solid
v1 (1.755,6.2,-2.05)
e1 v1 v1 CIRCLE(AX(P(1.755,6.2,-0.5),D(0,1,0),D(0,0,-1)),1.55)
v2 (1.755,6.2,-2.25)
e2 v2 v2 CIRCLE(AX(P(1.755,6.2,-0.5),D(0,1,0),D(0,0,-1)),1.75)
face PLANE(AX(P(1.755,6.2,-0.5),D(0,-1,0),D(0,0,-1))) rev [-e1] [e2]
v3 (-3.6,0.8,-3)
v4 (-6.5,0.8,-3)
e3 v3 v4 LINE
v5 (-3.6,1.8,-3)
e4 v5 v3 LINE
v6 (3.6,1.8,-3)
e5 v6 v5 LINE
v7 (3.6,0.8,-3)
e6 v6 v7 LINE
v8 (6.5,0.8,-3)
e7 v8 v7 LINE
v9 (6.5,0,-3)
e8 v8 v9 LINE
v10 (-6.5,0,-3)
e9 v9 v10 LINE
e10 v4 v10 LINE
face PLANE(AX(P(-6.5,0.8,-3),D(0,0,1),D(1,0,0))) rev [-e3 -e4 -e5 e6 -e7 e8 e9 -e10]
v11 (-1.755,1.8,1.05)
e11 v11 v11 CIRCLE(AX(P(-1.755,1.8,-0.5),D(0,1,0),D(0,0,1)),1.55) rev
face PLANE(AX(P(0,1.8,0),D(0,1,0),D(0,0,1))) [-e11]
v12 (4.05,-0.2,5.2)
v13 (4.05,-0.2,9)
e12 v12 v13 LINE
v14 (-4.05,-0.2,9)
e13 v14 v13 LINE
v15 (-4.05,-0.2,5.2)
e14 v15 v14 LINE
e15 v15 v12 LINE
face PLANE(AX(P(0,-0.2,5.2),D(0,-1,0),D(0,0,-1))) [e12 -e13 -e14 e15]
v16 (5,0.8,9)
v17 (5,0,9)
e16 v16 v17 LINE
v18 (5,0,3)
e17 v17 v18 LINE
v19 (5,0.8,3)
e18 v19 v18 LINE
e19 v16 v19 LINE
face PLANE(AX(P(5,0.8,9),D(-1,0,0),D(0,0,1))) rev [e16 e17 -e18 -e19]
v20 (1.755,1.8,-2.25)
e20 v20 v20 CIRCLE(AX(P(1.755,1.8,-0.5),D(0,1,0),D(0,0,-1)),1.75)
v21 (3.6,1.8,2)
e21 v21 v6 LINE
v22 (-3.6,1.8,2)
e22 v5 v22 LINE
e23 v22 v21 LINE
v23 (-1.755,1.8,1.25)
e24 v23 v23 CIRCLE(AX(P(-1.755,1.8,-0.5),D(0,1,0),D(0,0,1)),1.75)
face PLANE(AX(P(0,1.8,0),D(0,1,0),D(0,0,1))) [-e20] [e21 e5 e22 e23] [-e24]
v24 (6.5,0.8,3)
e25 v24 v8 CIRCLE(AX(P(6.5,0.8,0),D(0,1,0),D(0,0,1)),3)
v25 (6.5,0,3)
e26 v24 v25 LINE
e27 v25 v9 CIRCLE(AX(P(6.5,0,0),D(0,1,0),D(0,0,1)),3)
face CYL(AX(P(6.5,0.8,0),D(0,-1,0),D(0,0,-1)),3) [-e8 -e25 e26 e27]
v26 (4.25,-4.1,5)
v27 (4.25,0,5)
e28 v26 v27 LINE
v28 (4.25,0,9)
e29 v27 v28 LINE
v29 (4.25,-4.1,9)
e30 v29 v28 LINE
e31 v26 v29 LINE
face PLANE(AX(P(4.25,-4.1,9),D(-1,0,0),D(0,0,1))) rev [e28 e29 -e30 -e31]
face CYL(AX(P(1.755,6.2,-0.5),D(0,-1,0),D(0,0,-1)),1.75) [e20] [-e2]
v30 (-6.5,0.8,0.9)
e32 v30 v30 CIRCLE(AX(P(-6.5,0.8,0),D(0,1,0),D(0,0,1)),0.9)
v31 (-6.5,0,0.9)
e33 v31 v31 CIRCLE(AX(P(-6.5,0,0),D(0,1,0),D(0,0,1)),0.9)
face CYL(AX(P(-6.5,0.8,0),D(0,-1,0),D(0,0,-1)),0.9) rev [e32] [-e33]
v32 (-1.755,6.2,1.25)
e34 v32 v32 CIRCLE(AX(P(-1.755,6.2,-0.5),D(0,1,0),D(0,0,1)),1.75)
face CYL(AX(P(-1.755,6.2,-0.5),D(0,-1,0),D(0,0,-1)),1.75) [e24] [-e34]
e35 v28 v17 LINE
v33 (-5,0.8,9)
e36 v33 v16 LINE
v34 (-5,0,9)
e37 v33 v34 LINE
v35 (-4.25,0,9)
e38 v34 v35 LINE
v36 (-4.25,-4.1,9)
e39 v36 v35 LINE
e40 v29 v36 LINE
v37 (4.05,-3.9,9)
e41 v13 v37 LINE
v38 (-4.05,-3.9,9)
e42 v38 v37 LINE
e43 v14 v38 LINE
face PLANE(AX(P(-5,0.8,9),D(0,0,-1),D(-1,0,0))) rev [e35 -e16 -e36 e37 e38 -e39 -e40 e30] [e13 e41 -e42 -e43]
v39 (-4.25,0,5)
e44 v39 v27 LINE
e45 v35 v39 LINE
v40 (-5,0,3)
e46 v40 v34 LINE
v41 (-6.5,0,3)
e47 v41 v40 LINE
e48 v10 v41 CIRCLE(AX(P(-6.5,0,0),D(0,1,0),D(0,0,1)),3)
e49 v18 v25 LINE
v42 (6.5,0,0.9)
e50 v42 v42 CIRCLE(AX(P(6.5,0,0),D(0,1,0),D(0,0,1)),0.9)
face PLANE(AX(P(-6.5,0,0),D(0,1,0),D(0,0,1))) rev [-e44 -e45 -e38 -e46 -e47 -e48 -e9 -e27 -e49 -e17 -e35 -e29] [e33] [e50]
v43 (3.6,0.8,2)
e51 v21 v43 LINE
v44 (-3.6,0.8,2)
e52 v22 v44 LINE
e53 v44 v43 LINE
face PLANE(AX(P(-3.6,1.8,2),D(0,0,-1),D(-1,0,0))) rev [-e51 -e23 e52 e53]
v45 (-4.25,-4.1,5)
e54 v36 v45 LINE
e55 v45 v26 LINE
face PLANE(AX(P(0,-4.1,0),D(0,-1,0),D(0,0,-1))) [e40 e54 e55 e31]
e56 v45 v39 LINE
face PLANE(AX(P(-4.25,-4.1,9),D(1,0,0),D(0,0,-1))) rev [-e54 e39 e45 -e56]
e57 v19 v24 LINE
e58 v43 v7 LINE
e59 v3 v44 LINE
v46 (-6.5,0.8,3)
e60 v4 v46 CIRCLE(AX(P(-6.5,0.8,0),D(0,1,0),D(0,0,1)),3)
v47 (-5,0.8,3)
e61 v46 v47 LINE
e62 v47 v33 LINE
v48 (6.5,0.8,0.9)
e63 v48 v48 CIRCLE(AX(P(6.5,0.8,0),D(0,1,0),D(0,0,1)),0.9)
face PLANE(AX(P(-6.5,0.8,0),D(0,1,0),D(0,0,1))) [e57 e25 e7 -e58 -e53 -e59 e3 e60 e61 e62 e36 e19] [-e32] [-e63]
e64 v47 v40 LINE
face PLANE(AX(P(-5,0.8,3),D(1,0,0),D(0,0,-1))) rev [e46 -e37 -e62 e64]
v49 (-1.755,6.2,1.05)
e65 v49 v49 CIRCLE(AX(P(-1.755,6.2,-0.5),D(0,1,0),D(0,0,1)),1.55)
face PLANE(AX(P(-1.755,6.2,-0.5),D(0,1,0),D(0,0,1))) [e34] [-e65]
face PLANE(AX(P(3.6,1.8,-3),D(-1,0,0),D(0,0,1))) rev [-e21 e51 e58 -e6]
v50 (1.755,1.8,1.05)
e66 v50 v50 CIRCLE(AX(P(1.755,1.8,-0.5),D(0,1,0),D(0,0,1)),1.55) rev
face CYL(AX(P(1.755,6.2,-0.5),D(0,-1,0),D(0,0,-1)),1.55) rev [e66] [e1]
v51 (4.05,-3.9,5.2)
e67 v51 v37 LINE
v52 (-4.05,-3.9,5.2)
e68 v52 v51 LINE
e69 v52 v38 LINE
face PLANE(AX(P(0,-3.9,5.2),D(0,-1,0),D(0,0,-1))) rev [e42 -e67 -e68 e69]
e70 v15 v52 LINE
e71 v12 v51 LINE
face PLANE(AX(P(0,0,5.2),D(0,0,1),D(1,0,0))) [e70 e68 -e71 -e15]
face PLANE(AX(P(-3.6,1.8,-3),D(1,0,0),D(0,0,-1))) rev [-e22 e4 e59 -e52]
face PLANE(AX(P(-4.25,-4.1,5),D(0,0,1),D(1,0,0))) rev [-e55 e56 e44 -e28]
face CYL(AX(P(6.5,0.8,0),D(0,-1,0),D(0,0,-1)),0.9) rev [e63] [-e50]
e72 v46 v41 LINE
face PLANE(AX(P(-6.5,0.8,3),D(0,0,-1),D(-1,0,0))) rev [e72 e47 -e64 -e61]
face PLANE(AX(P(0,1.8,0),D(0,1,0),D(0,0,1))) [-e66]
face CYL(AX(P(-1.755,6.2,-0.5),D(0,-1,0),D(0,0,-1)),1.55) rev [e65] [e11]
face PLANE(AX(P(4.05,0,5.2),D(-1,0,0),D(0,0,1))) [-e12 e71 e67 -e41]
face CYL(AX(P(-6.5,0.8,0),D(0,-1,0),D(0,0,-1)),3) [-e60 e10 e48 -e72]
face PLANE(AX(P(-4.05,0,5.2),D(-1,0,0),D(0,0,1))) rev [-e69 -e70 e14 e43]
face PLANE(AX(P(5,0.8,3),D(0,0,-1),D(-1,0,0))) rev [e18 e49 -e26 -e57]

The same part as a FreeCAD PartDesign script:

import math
import FreeCAD as App
import Part
import Sketcher
Q = App.Units.Quantity


def add_polygon(sketch, points):
    """Adds a closed chain of lines whose ends are joined by coincident constraints."""
    first, n = sketch.GeometryCount, len(points)
    for a, b in zip(points, points[1:] + points[:1]):
        sketch.addGeometry(Part.LineSegment(App.Vector(*a, 0), App.Vector(*b, 0)), False)
    for i in range(n):
        sketch.addConstraint(Sketcher.Constraint("Coincident", first + i, 2, first + (i + 1) % n, 1))

doc = App.newDocument("Part")
body = doc.addObject("PartDesign::Body", "Body")

# Sketch on XZ plane
sketch1 = body.newObject("Sketcher::SketchObject", "Sketch")
sketch1.AttachmentSupport = (doc.getObject("XZ_Plane"), [""])
sketch1.MapMode = "FlatFace"
sketch1.addGeometry([
    Part.LineSegment(App.Vector(6.5, -3, 0), App.Vector(-6.5, -3, 0)),  # 0
    Part.ArcOfCircle(Part.Circle(App.Vector(-6.5, 0, 0), App.Vector(0, 0, 1), 3), math.radians(90), math.radians(270)),  # 1
    Part.LineSegment(App.Vector(-6.5, 3, 0), App.Vector(-5, 3, 0)),  # 2
    Part.LineSegment(App.Vector(-5, 3, 0), App.Vector(-5, 9, 0)),  # 3
    Part.LineSegment(App.Vector(-5, 9, 0), App.Vector(5, 9, 0)),  # 4
    Part.LineSegment(App.Vector(5, 9, 0), App.Vector(5, 3, 0)),  # 5
    Part.LineSegment(App.Vector(5, 3, 0), App.Vector(6.5, 3, 0)),  # 6
    Part.ArcOfCircle(Part.Circle(App.Vector(6.5, 0, 0), App.Vector(0, 0, 1), 3), math.radians(-90), math.radians(90)),  # 7
    Part.Circle(App.Vector(6.5, 0, 0), App.Vector(0, 0, 1), 0.9),  # 8
    Part.Circle(App.Vector(-6.5, 0, 0), App.Vector(0, 0, 1), 0.9),  # 9
], False)
sketch1.addConstraint([
    Sketcher.Constraint("Tangent", 0, 2, 1, 2),
    Sketcher.Constraint("Tangent", 1, 1, 2, 1),
    Sketcher.Constraint("Coincident", 2, 2, 3, 1),
    Sketcher.Constraint("Coincident", 3, 2, 4, 1),
    Sketcher.Constraint("Coincident", 4, 2, 5, 1),
    Sketcher.Constraint("Coincident", 5, 2, 6, 1),
    Sketcher.Constraint("Tangent", 6, 2, 7, 2),
    Sketcher.Constraint("Tangent", 7, 1, 0, 1),
    Sketcher.Constraint("Horizontal", 0),
    Sketcher.Constraint("Horizontal", 2),
    Sketcher.Constraint("Vertical", 3),
    Sketcher.Constraint("Horizontal", 4),
    Sketcher.Constraint("Vertical", 5),
    Sketcher.Constraint("Horizontal", 6),
    Sketcher.Constraint("Coincident", 8, 3, 7, 3),
    Sketcher.Constraint("Coincident", 9, 3, 1, 3),
    Sketcher.Constraint("Equal", 1, 7),
    Sketcher.Constraint("Equal", 8, 9),
    Sketcher.Constraint("Symmetric", 1, 3, 7, 3, -1, 1),
    Sketcher.Constraint("Equal", 2, 6),
    Sketcher.Constraint("Radius", 1, Q("3 mm")),
    Sketcher.Constraint("Diameter", 8, Q("1.8 mm")),
    Sketcher.Constraint("DistanceX", 0, 2, 0, 1, Q("13 mm")),
    Sketcher.Constraint("DistanceX", 4, 1, 4, 2, Q("10 mm")),
    Sketcher.Constraint("DistanceY", 3, 1, 3, 2, Q("6 mm")),
])
pad1 = body.newObject("PartDesign::Pad", "Pad")
pad1.Profile = sketch1
pad1.Length = 0.8
pad1.Reversed = True

# Sketch on XZ plane
sketch2 = body.newObject("Sketcher::SketchObject", "Sketch001")
sketch2.AttachmentSupport = (doc.getObject("XZ_Plane"), [""])
sketch2.MapMode = "FlatFace"
sketch2.AttachmentOffset = App.Placement(App.Vector(0, 0, -0.8), App.Rotation())
add_polygon(sketch2, [(-4, -3), (-4, 2), (4, 2), (4, -3)])  # lines 0-3
sketch2.addConstraint([
    Sketcher.Constraint("Vertical", 0),
    Sketcher.Constraint("Horizontal", 1),
    Sketcher.Constraint("Vertical", 2),
    Sketcher.Constraint("Horizontal", 3),
    Sketcher.Constraint("DistanceY", 0, 1, 0, 2, Q("5 mm")),
    Sketcher.Constraint("DistanceX", 1, 1, 1, 2, Q("7.2 mm")),
    Sketcher.Constraint("DistanceY", -1, 1, 0, 2, Q("2 mm")),
    Sketcher.Constraint("DistanceX", 0, 2, -1, 1, Q("3.6 mm")),
])
pad2 = body.newObject("PartDesign::Pad", "Pad001")
pad2.Profile = sketch2
pad2.Length = 1
pad2.Reversed = True

# Sketch on XZ plane
sketch3 = body.newObject("Sketcher::SketchObject", "Sketch002")
sketch3.AttachmentSupport = (doc.getObject("XZ_Plane"), [""])
sketch3.MapMode = "FlatFace"
sketch3.AttachmentOffset = App.Placement(App.Vector(0, 0, -1.8), App.Rotation())
sketch3.addGeometry([
    Part.Circle(App.Vector(-1.8, -0.5, 0), App.Vector(0, 0, 1), 1.8),
    Part.Circle(App.Vector(-1.8, -0.5, 0), App.Vector(0, 0, 1), 1.6),
    Part.Circle(App.Vector(1.8, -0.5, 0), App.Vector(0, 0, 1), 1.8),
    Part.Circle(App.Vector(1.8, -0.5, 0), App.Vector(0, 0, 1), 1.6),
], False)
sketch3.addConstraint([
    Sketcher.Constraint("Coincident", 1, 3, 0, 3),
    Sketcher.Constraint("Coincident", 3, 3, 2, 3),
    Sketcher.Constraint("Equal", 0, 2),
    Sketcher.Constraint("Equal", 1, 3),
    Sketcher.Constraint("Symmetric", 0, 3, 2, 3, -2),
    Sketcher.Constraint("Diameter", 0, Q("3.5 mm")),
    Sketcher.Constraint("Diameter", 1, Q("3.1 mm")),
    Sketcher.Constraint("DistanceY", 0, 3, -1, 1, Q("0.5 mm")),
    Sketcher.Constraint("DistanceX", 0, 3, 2, 3, Q("3.51 mm")),
])
pad3 = body.newObject("PartDesign::Pad", "Pad002")
pad3.Profile = sketch3
pad3.Length = 4.4
pad3.Reversed = True

# Sketch on XZ plane
sketch4 = body.newObject("Sketcher::SketchObject", "Sketch003")
sketch4.AttachmentSupport = (doc.getObject("XZ_Plane"), [""])
sketch4.MapMode = "FlatFace"
add_polygon(sketch4, [(-4.2, 9), (-4.2, 5), (4.2, 5), (4.2, 9)])  # lines 0-3
sketch4.addConstraint([
    Sketcher.Constraint("Vertical", 0),
    Sketcher.Constraint("Horizontal", 1),
    Sketcher.Constraint("Vertical", 2),
    Sketcher.Constraint("Horizontal", 3),
    Sketcher.Constraint("DistanceY", 0, 2, 0, 1, Q("4 mm")),
    Sketcher.Constraint("DistanceX", 1, 1, 1, 2, Q("8.5 mm")),
    Sketcher.Constraint("DistanceY", -1, 1, 0, 2, Q("5 mm")),
    Sketcher.Constraint("DistanceX", 0, 2, -1, 1, Q("4.25 mm")),
])
pad4 = body.newObject("PartDesign::Pad", "Pad003")
pad4.Profile = sketch4
pad4.Length = 4.1

# Sketch on XY plane
sketch5 = body.newObject("Sketcher::SketchObject", "Sketch004")
sketch5.AttachmentSupport = (doc.getObject("XY_Plane"), [""])
sketch5.MapMode = "FlatFace"
sketch5.AttachmentOffset = App.Placement(App.Vector(0, 0, 9), App.Rotation())
add_polygon(sketch5, [(-4, -0.2), (-4, -3.9), (4, -3.9), (4, -0.2)])  # lines 0-3
sketch5.addConstraint([
    Sketcher.Constraint("Vertical", 0),
    Sketcher.Constraint("Horizontal", 1),
    Sketcher.Constraint("Vertical", 2),
    Sketcher.Constraint("Horizontal", 3),
    Sketcher.Constraint("DistanceX", 1, 1, 1, 2, Q("8.1 mm")),
    Sketcher.Constraint("DistanceY", 0, 2, 0, 1, Q("3.7 mm")),
    Sketcher.Constraint("DistanceY", 0, 2, -1, 1, Q("3.9 mm")),
    Sketcher.Constraint("DistanceX", 0, 2, -1, 1, Q("4.05 mm")),
])
pocket1 = body.newObject("PartDesign::Pocket", "Pocket")
pocket1.Profile = sketch5
pocket1.Length = 3.8

doc.recompute()
